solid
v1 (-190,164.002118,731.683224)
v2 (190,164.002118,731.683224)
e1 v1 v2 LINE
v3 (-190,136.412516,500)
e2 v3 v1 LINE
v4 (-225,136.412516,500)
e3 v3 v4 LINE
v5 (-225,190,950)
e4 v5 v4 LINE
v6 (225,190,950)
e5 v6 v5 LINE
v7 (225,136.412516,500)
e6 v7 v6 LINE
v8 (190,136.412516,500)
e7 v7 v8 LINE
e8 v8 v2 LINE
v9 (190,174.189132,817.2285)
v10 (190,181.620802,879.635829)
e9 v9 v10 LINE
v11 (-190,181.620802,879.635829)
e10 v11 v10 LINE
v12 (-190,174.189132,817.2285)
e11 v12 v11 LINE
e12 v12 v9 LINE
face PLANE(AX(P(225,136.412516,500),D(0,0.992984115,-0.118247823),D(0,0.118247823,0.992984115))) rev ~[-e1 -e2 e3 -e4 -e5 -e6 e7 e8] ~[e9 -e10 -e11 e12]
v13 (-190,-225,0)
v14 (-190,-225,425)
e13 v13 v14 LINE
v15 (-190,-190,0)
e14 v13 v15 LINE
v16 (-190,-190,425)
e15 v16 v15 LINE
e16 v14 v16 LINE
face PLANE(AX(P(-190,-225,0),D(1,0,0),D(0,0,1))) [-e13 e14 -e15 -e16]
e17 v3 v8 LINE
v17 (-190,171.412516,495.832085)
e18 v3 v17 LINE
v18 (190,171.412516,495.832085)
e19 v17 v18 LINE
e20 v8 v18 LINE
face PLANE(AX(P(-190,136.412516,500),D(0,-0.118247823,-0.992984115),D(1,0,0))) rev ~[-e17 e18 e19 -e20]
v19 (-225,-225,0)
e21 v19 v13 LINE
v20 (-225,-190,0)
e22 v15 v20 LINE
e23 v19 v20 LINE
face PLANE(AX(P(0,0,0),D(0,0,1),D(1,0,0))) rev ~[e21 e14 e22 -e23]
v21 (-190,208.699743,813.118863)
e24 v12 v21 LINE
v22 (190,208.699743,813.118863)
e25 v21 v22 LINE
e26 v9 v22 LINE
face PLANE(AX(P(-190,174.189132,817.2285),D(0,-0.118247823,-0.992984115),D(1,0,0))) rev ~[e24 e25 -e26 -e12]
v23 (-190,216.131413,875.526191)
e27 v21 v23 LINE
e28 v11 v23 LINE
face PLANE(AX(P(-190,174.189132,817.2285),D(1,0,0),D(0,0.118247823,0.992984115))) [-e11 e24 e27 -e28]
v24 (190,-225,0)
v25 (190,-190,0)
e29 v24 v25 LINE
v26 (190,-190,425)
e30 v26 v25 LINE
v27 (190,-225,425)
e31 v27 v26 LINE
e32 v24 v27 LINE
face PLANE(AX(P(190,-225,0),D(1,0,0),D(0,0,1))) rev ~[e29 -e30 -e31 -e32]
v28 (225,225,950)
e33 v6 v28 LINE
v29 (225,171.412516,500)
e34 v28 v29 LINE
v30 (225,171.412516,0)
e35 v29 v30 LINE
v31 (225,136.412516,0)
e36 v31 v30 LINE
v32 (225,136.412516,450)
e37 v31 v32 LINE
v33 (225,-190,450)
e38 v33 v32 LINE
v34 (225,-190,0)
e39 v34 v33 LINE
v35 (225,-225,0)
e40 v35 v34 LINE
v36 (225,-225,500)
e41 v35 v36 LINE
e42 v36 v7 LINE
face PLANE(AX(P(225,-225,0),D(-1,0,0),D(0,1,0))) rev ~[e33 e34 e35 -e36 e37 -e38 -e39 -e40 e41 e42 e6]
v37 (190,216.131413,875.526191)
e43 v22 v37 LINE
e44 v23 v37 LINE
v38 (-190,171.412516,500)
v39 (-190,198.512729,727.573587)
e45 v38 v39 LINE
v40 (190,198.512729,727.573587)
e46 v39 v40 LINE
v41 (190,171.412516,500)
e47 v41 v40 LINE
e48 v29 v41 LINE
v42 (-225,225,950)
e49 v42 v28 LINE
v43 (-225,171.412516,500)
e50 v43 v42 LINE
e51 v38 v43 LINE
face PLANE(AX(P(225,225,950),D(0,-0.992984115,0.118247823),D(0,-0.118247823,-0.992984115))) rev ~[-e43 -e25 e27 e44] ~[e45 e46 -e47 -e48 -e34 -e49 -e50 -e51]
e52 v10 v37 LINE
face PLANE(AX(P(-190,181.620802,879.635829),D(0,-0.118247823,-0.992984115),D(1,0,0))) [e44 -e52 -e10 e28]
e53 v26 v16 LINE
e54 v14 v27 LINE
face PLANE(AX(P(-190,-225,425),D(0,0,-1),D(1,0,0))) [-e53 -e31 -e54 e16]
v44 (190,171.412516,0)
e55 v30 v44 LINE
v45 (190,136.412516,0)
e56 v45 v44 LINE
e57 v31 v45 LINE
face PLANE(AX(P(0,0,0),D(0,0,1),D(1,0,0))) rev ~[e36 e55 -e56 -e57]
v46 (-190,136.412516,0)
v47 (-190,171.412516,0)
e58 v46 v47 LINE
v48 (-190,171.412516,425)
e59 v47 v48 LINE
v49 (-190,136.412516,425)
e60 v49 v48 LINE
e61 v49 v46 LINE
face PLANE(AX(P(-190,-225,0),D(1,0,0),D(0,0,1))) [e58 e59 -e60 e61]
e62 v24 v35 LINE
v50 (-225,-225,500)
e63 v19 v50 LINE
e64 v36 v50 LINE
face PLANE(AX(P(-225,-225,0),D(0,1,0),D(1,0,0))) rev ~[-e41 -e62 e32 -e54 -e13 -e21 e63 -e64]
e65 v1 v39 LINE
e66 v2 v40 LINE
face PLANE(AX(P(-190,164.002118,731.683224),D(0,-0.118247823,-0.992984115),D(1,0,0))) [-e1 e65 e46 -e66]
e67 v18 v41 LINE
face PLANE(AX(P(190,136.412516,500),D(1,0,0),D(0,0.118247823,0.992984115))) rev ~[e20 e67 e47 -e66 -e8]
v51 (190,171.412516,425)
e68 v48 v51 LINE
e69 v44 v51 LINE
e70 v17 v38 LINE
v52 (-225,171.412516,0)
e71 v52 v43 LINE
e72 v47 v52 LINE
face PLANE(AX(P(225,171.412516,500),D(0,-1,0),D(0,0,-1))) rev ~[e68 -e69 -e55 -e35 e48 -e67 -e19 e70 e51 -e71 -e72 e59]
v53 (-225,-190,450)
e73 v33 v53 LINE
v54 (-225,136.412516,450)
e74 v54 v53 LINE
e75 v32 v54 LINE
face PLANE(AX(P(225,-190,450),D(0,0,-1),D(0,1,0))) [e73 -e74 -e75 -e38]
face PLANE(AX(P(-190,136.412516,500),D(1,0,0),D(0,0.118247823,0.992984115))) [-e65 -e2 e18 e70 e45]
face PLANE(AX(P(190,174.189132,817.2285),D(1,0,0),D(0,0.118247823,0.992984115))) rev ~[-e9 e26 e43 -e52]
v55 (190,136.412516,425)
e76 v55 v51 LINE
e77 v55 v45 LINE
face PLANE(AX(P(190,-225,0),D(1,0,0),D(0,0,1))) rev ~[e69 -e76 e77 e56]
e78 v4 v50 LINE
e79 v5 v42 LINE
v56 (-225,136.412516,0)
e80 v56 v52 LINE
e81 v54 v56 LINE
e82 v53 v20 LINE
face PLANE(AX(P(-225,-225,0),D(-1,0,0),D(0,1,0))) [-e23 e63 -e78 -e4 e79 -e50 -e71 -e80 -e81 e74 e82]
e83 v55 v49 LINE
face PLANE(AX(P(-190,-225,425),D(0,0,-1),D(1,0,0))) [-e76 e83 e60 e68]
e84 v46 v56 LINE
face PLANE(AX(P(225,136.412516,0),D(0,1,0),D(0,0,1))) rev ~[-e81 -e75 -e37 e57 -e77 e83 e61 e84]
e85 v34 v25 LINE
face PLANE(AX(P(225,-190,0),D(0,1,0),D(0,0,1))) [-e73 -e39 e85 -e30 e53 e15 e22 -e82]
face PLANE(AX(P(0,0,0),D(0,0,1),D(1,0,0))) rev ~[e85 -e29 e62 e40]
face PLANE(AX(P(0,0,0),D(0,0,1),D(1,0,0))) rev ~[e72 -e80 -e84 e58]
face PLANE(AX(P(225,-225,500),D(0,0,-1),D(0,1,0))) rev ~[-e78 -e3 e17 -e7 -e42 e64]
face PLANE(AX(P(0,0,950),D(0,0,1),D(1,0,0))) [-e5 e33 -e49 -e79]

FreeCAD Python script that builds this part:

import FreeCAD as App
import Part
import Sketcher


def add_polygon(sketch, points):
    """Adds a closed chain of lines whose ends are joined by coincident constraints."""
    first, n = sketch.GeometryCount, len(points)
    for a, b in zip(points, points[1:] + points[:1]):
        sketch.addGeometry(Part.LineSegment(App.Vector(*a, 0), App.Vector(*b, 0)), False)
    for i in range(n):
        sketch.addConstraint(Sketcher.Constraint("Coincident", first + i, 2, first + (i + 1) % n, 1))

doc = App.newDocument("Part")
params = doc.addObject("Spreadsheet::Sheet", "Params")
for row, (alias, value) in enumerate([
    ("sketch1_width", "450 mm"),
    ("pad1_length", "950 mm"),
    ("sketch2_width", "415 mm"),
    ("sketch2_height", "450 mm"),
    ("sketch2_height2", "500 mm"),
    ("sketch3_width", "380 mm"),
    ("sketch3_height", "425 mm"),
    ("sketch4_width", "380 mm"),
], start=1):
    params.set(f"A{row}", alias)
    params.set(f"B{row}", "=" + value)
    params.setAlias(f"B{row}", alias)

body = doc.addObject("PartDesign::Body", "Body")

sketch1 = body.newObject("Sketcher::SketchObject", "Sketch")
sketch1.AttachmentSupport = (doc.getObject("XY_Plane"), [""])
sketch1.MapMode = "FlatFace"
add_polygon(sketch1, [(-225, 225), (-225, -225), (225, -225), (225, 225)])
sketch1.addConstraint([
    Sketcher.Constraint("Vertical", 0),
    Sketcher.Constraint("Horizontal", 1),
    Sketcher.Constraint("Vertical", 2),
    Sketcher.Constraint("Horizontal", 3),
    Sketcher.Constraint("Symmetric", 0, 2, 2, 2, -1, 1),
    Sketcher.Constraint("Equal", 3, 0),
    Sketcher.Constraint("DistanceX", 1, 1, 1, 2, 450.0),
])
sketch1.setExpression("Constraints[10]", "Params.sketch1_width")
pad1 = body.newObject("PartDesign::Pad", "Pad")
pad1.Profile = sketch1
pad1.setExpression("Length", "Params.pad1_length")

sketch2 = body.newObject("Sketcher::SketchObject", "Sketch001")
sketch2.AttachmentSupport = (doc.getObject("YZ_Plane"), [""])
sketch2.MapMode = "FlatFace"
sketch2.AttachmentOffset = App.Placement(App.Vector(0, 0, 225), App.Rotation())
add_polygon(sketch2, [(-225, 950), (-225, 500), (136, 500), (190, 950)])
add_polygon(sketch2, [(225, 950), (171, 500), (171, 0), (225, 0)])
add_polygon(sketch2, [(-190, 450), (-190, 0), (136, 0), (136, 450)])
sketch2.addConstraint([
    Sketcher.Constraint("Vertical", 0),
    Sketcher.Constraint("Horizontal", 1),
    Sketcher.Constraint("Horizontal", 3),
    Sketcher.Constraint("Vertical", 5),
    Sketcher.Constraint("Horizontal", 6),
    Sketcher.Constraint("Vertical", 7),
    Sketcher.Constraint("Vertical", 8),
    Sketcher.Constraint("Horizontal", 9),
    Sketcher.Constraint("Vertical", 10),
    Sketcher.Constraint("Horizontal", 11),
    Sketcher.Constraint("Symmetric", 3, 2, 7, 2, -2),
    Sketcher.Constraint("PointOnObject", 5, 2, -1),
    Sketcher.Constraint("PointOnObject", 8, 2, -1),
    Sketcher.Constraint("Parallel", 2, 4),
    Sketcher.Constraint("Horizontal", 1, 2, 4, 2),
    Sketcher.Constraint("Vertical", 1, 2, 9, 2),
    Sketcher.Constraint("Equal", 0, 8),
    Sketcher.Constraint("DistanceX", 3, 2, 3, 1, 415.0),
    Sketcher.Constraint("DistanceY", 0, 2, 0, 1, 450.0),
    Sketcher.Constraint("DistanceY", 5, 2, 5, 1, 500.0),
    Sketcher.Constraint("DistanceX", 0, 2, -1, 1, 225.0),
    Sketcher.Constraint("DistanceX", 8, 2, -1, 1, 190.0),
    Sketcher.Constraint("DistanceX", 1, 1, 1, 2, 361.412516),
])
sketch2.setExpression("Constraints[29]", "Params.sketch2_width")
sketch2.setExpression("Constraints[30]", "Params.sketch2_height")
sketch2.setExpression("Constraints[31]", "Params.sketch2_height2")
pocket1 = body.newObject("PartDesign::Pocket", "Pocket")
pocket1.Profile = sketch2
pocket1.Type = "ThroughAll"

sketch3 = body.newObject("Sketcher::SketchObject", "Sketch002")
sketch3.AttachmentSupport = (doc.getObject("XZ_Plane"), [""])
sketch3.MapMode = "FlatFace"
sketch3.AttachmentOffset = App.Placement(App.Vector(0, 0, 225), App.Rotation())
add_polygon(sketch3, [(-190, 425), (-190, 0), (190, 0), (190, 425)])
sketch3.addConstraint([
    Sketcher.Constraint("Vertical", 0),
    Sketcher.Constraint("Horizontal", 1),
    Sketcher.Constraint("Vertical", 2),
    Sketcher.Constraint("Horizontal", 3),
    Sketcher.Constraint("Symmetric", 0, 2, 1, 2, -1, 1),
    Sketcher.Constraint("DistanceX", 1, 1, 1, 2, 380.0),
    Sketcher.Constraint("DistanceY", 0, 2, 0, 1, 425.0),
])
sketch3.setExpression("Constraints[9]", "Params.sketch3_width")
sketch3.setExpression("Constraints[10]", "Params.sketch3_height")
pocket2 = body.newObject("PartDesign::Pocket", "Pocket001")
pocket2.Profile = sketch3
pocket2.Type = "ThroughAll"

sketch4 = body.newObject("Sketcher::SketchObject", "Sketch003")
sketch4.Placement = App.Placement(App.Vector(0, 75.796017, -9.02604), App.Rotation(App.Vector(1, 0, 0), App.Vector(0, 0.118247823, 0.992984115), App.Vector(0, -0.992984115, 0.118247823), "ZXY"))
add_polygon(sketch4, [(-190, 746), (-190, 513), (190, 513), (190, 746)])
add_polygon(sketch4, [(-190, 895), (-190, 832), (190, 832), (190, 895)])
sketch4.addConstraint([
    Sketcher.Constraint("Vertical", 0),
    Sketcher.Constraint("Horizontal", 1),
    Sketcher.Constraint("Vertical", 2),
    Sketcher.Constraint("Horizontal", 3),
    Sketcher.Constraint("Vertical", 4),
    Sketcher.Constraint("Horizontal", 5),
    Sketcher.Constraint("Vertical", 6),
    Sketcher.Constraint("Horizontal", 7),
    Sketcher.Constraint("Vertical", 3, 2, 4, 2),
    Sketcher.Constraint("Vertical", 2, 2, 5, 2),
    Sketcher.Constraint("DistanceX", 1, 1, 1, 2, 380.0),
    Sketcher.Constraint("DistanceX", 0, 2, -1, 1, 190.0),
    Sketcher.Constraint("DistanceY", 0, 2, 0, 1, 233.320171),
    Sketcher.Constraint("DistanceY", 4, 2, 4, 1, 62.848265),
    Sketcher.Constraint("DistanceY", -1, 1, 0, 2, 512.622541),
    Sketcher.Constraint("DistanceY", -1, 1, 6, 2, 894.940669),
])
sketch4.setExpression("Constraints[18]", "Params.sketch4_width")
pocket3 = body.newObject("PartDesign::Pocket", "Pocket002")
pocket3.Profile = sketch4
pocket3.Type = "ThroughAll"

doc.recompute()
